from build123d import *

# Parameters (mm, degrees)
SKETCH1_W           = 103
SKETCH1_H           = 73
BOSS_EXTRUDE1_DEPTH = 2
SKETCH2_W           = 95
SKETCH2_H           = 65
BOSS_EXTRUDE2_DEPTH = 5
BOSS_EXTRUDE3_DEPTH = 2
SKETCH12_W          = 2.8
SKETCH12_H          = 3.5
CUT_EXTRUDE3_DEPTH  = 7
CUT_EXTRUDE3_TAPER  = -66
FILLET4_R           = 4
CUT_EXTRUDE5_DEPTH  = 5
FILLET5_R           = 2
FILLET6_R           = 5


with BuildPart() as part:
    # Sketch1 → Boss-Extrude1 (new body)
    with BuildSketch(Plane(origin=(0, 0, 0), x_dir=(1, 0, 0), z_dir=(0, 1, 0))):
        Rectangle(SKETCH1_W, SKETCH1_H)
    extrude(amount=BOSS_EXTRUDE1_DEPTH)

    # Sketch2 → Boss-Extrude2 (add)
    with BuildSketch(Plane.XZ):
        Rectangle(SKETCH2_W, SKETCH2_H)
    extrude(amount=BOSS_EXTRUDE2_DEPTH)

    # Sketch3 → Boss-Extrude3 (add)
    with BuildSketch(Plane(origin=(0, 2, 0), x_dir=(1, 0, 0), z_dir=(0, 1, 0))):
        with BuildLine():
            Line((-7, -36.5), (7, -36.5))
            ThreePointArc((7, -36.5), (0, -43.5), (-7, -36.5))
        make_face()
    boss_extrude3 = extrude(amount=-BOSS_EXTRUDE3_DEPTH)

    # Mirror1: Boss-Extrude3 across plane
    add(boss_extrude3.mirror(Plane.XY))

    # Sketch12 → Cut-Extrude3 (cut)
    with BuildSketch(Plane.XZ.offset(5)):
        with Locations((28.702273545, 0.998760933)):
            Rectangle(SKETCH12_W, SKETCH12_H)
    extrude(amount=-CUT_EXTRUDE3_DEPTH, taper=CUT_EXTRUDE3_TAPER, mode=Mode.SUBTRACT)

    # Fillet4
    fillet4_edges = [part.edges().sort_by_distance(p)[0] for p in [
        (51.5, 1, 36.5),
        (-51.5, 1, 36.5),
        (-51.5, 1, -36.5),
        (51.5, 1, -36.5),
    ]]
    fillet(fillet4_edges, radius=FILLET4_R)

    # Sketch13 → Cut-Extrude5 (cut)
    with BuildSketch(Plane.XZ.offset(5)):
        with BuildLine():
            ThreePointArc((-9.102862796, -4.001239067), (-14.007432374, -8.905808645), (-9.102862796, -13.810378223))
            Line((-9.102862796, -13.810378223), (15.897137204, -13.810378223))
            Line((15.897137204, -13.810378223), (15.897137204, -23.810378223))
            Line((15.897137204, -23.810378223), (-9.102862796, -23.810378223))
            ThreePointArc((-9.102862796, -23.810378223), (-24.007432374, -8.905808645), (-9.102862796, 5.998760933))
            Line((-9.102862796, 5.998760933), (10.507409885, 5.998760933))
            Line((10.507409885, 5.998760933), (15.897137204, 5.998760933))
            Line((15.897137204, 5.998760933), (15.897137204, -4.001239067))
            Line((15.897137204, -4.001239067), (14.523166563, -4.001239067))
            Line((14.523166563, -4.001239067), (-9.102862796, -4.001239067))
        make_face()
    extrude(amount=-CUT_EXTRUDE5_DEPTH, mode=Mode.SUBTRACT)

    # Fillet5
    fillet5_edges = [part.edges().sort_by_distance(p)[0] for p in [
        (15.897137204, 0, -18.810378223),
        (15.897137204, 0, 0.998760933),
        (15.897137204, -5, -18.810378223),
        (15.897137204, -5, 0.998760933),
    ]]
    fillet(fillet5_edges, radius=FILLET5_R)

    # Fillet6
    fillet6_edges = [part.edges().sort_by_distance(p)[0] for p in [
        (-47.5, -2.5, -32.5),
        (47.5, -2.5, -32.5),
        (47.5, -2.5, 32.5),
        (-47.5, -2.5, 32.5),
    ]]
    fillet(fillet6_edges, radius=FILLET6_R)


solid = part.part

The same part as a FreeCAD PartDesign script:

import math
import FreeCAD as App
import Part
import Sketcher
from FreeCAD import Vector
Q = App.Units.Quantity


def edges_at(feature, points):
    """Names of the edges that pass closest to the given points."""
    edges = feature.Shape.Edges
    near = lambda p: min(range(len(edges)), key=lambda i: edges[i].distToShape(Part.Vertex(*p))[0])
    return sorted({f"Edge{near(p) + 1}" for p in points})

doc = App.newDocument("Part")
body = doc.addObject("PartDesign::Body", "Body")

sketch1 = body.newObject("Sketcher::SketchObject", "Sketch")
sketch1.AttachmentSupport = (doc.getObject("XZ_Plane"), [""])
sketch1.MapMode = "FlatFace"
sketch1.addGeometry(Part.LineSegment(Vector(-52, -36, 0), Vector(-52, 36, 0)), False)
sketch1.addGeometry(Part.LineSegment(Vector(-52, 36, 0), Vector(52, 36, 0)), False)
sketch1.addGeometry(Part.LineSegment(Vector(52, 36, 0), Vector(52, -36, 0)), False)
sketch1.addGeometry(Part.LineSegment(Vector(52, -36, 0), Vector(-52, -36, 0)), False)
sketch1.addConstraint(Sketcher.Constraint("Coincident", 0, 2, 1, 1))
sketch1.addConstraint(Sketcher.Constraint("Coincident", 1, 2, 2, 1))
sketch1.addConstraint(Sketcher.Constraint("Coincident", 2, 2, 3, 1))
sketch1.addConstraint(Sketcher.Constraint("Coincident", 3, 2, 0, 1))
sketch1.addConstraint(Sketcher.Constraint("Vertical", 0))
sketch1.addConstraint(Sketcher.Constraint("Horizontal", 1))
sketch1.addConstraint(Sketcher.Constraint("Vertical", 2))
sketch1.addConstraint(Sketcher.Constraint("Horizontal", 3))
sketch1.addConstraint(Sketcher.Constraint("Symmetric", 0, 2, 2, 2, -1, 1))
sketch1.addConstraint(Sketcher.Constraint("DistanceX", 1, 1, 1, 2, Q("103 mm")))
sketch1.addConstraint(Sketcher.Constraint("DistanceY", 0, 1, 0, 2, Q("73 mm")))
pad1 = body.newObject("PartDesign::Pad", "Pad")
pad1.Profile = sketch1
pad1.Length = 2
pad1.Reversed = True

sketch2 = body.newObject("Sketcher::SketchObject", "Sketch001")
sketch2.AttachmentSupport = (doc.getObject("XZ_Plane"), [""])
sketch2.MapMode = "FlatFace"
sketch2.addGeometry(Part.LineSegment(Vector(-48, 32, 0), Vector(-48, -32, 0)), False)
sketch2.addGeometry(Part.LineSegment(Vector(-48, -32, 0), Vector(48, -32, 0)), False)
sketch2.addGeometry(Part.LineSegment(Vector(48, -32, 0), Vector(48, 32, 0)), False)
sketch2.addGeometry(Part.LineSegment(Vector(48, 32, 0), Vector(-48, 32, 0)), False)
sketch2.addConstraint(Sketcher.Constraint("Coincident", 0, 2, 1, 1))
sketch2.addConstraint(Sketcher.Constraint("Coincident", 1, 2, 2, 1))
sketch2.addConstraint(Sketcher.Constraint("Coincident", 2, 2, 3, 1))
sketch2.addConstraint(Sketcher.Constraint("Coincident", 3, 2, 0, 1))
sketch2.addConstraint(Sketcher.Constraint("Vertical", 0))
sketch2.addConstraint(Sketcher.Constraint("Horizontal", 1))
sketch2.addConstraint(Sketcher.Constraint("Vertical", 2))
sketch2.addConstraint(Sketcher.Constraint("Horizontal", 3))
sketch2.addConstraint(Sketcher.Constraint("Symmetric", 0, 2, 2, 2, -1, 1))
sketch2.addConstraint(Sketcher.Constraint("DistanceX", 1, 1, 1, 2, Q("95 mm")))
sketch2.addConstraint(Sketcher.Constraint("DistanceY", 0, 2, 0, 1, Q("65 mm")))
pad2 = body.newObject("PartDesign::Pad", "Pad001")
pad2.Profile = sketch2
pad2.Length = 5

sketch3 = body.newObject("Sketcher::SketchObject", "Sketch002")
sketch3.AttachmentSupport = (doc.getObject("XZ_Plane"), [""])
sketch3.MapMode = "FlatFace"
sketch3.AttachmentOffset = App.Placement(Vector(0, 0, -2), App.Rotation())
sketch3.addGeometry(Part.LineSegment(Vector(7, 36, 0), Vector(-7, 36, 0)), False)
sketch3.addGeometry(Part.ArcOfCircle(Part.Circle(Vector(0, 36, 0), Vector(0, 0, 1), 7), math.radians(0), math.radians(180)), False)
sketch3.addConstraint(Sketcher.Constraint("Coincident", 0, 1, 1, 1))
sketch3.addConstraint(Sketcher.Constraint("Coincident", 1, 2, 0, 2))
sketch3.addConstraint(Sketcher.Constraint("Horizontal", 0))
sketch3.addConstraint(Sketcher.Constraint("PointOnObject", 1, 3, -2))
sketch3.addConstraint(Sketcher.Constraint("Horizontal", 1, 3, 0, 1))
sketch3.addConstraint(Sketcher.Constraint("Radius", 1, Q("7 mm")))
sketch3.addConstraint(Sketcher.Constraint("DistanceY", -1, 1, 1, 3, Q("36.5 mm")))
pad3 = body.newObject("PartDesign::Pad", "Pad002")
pad3.Profile = sketch3
pad3.Length = 2
doc.recompute()

mirrored = body.newObject("PartDesign::Mirrored", "Mirrored")
mirrored.Originals = [pad3]
mirrored.MirrorPlane = (doc.getObject("XY_Plane"), [""])
body.Tip = mirrored

sketch4 = body.newObject("Sketcher::SketchObject", "Sketch003")
sketch4.AttachmentSupport = (doc.getObject("XZ_Plane"), [""])
sketch4.MapMode = "FlatFace"
sketch4.AttachmentOffset = App.Placement(Vector(0, 0, 5), App.Rotation())
sketch4.addGeometry(Part.LineSegment(Vector(27.3, 2.7, 0), Vector(27.3, -0.8, 0)), False)
sketch4.addGeometry(Part.LineSegment(Vector(27.3, -0.8, 0), Vector(30.1, -0.8, 0)), False)
sketch4.addGeometry(Part.LineSegment(Vector(30.1, -0.8, 0), Vector(30.1, 2.7, 0)), False)
sketch4.addGeometry(Part.LineSegment(Vector(30.1, 2.7, 0), Vector(27.3, 2.7, 0)), False)
sketch4.addConstraint(Sketcher.Constraint("Coincident", 0, 2, 1, 1))
sketch4.addConstraint(Sketcher.Constraint("Coincident", 1, 2, 2, 1))
sketch4.addConstraint(Sketcher.Constraint("Coincident", 2, 2, 3, 1))
sketch4.addConstraint(Sketcher.Constraint("Coincident", 3, 2, 0, 1))
sketch4.addConstraint(Sketcher.Constraint("Vertical", 0))
sketch4.addConstraint(Sketcher.Constraint("Horizontal", 1))
sketch4.addConstraint(Sketcher.Constraint("Vertical", 2))
sketch4.addConstraint(Sketcher.Constraint("Horizontal", 3))
sketch4.addConstraint(Sketcher.Constraint("DistanceX", 1, 1, 1, 2, Q("2.8 mm")))
sketch4.addConstraint(Sketcher.Constraint("DistanceY", 0, 2, 0, 1, Q("3.5 mm")))
sketch4.addConstraint(Sketcher.Constraint("DistanceY", 0, 2, -1, 1, Q("0.751239 mm")))
sketch4.addConstraint(Sketcher.Constraint("DistanceX", -1, 1, 0, 2, Q("27.302274 mm")))
pocket1 = body.newObject("PartDesign::Pocket", "Pocket")
pocket1.Profile = sketch4
pocket1.Length = 7
pocket1.TaperAngle = 66
doc.recompute()

fillet = body.newObject("PartDesign::Fillet", "Fillet")
fillet.Base = (pocket1, edges_at(pocket1, [
    (51.5, 1, 36.5),
    (-51.5, 1, 36.5),
    (-51.5, 1, -36.5),
    (51.5, 1, -36.5),
]))
fillet.Radius = 4

sketch5 = body.newObject("Sketcher::SketchObject", "Sketch004")
sketch5.AttachmentSupport = (doc.getObject("XZ_Plane"), [""])
sketch5.MapMode = "FlatFace"
sketch5.AttachmentOffset = App.Placement(Vector(0, 0, 5), App.Rotation())
sketch5.addGeometry(Part.ArcOfCircle(Part.Circle(Vector(-9.1, -8.9, 0), Vector(0, 0, 1), 4.9), math.radians(90), math.radians(270)), False)
sketch5.addGeometry(Part.LineSegment(Vector(-9.1, -4, 0), Vector(15.9, -4, 0)), False)
sketch5.addGeometry(Part.LineSegment(Vector(15.9, -4, 0), Vector(15.9, 6, 0)), False)
sketch5.addGeometry(Part.LineSegment(Vector(15.9, 6, 0), Vector(-9.1, 6, 0)), False)
sketch5.addGeometry(Part.ArcOfCircle(Part.Circle(Vector(-9.1, -8.9, 0), Vector(0, 0, 1), 14.9), math.radians(90), math.radians(270)), False)
sketch5.addGeometry(Part.LineSegment(Vector(-9.1, -23.8, 0), Vector(15.9, -23.8, 0)), False)
sketch5.addGeometry(Part.LineSegment(Vector(15.9, -23.8, 0), Vector(15.9, -13.8, 0)), False)
sketch5.addGeometry(Part.LineSegment(Vector(15.9, -13.8, 0), Vector(-9.1, -13.8, 0)), False)
sketch5.addConstraint(Sketcher.Constraint("Tangent", 0, 1, 1, 1))
sketch5.addConstraint(Sketcher.Constraint("Coincident", 1, 2, 2, 1))
sketch5.addConstraint(Sketcher.Constraint("Coincident", 2, 2, 3, 1))
sketch5.addConstraint(Sketcher.Constraint("Tangent", 3, 2, 4, 1))
sketch5.addConstraint(Sketcher.Constraint("Tangent", 4, 2, 5, 1))
sketch5.addConstraint(Sketcher.Constraint("Coincident", 5, 2, 6, 1))
sketch5.addConstraint(Sketcher.Constraint("Coincident", 6, 2, 7, 1))
sketch5.addConstraint(Sketcher.Constraint("Tangent", 7, 2, 0, 2))
sketch5.addConstraint(Sketcher.Constraint("Horizontal", 1))
sketch5.addConstraint(Sketcher.Constraint("Vertical", 2))
sketch5.addConstraint(Sketcher.Constraint("Horizontal", 3))
sketch5.addConstraint(Sketcher.Constraint("Horizontal", 5))
sketch5.addConstraint(Sketcher.Constraint("Vertical", 6))
sketch5.addConstraint(Sketcher.Constraint("Horizontal", 7))
sketch5.addConstraint(Sketcher.Constraint("Coincident", 4, 3, 0, 3))
sketch5.addConstraint(Sketcher.Constraint("Vertical", 2, 2, 5, 2))
sketch5.addConstraint(Sketcher.Constraint("DistanceX", 1, 1, 1, 2, Q("25 mm")))
sketch5.addConstraint(Sketcher.Constraint("DistanceY", 2, 1, 2, 2, Q("10 mm")))
sketch5.addConstraint(Sketcher.Constraint("Radius", 0, Q("4.90457 mm")))
sketch5.addConstraint(Sketcher.Constraint("DistanceY", 0, 3, -1, 1, Q("8.905809 mm")))
sketch5.addConstraint(Sketcher.Constraint("DistanceX", 0, 3, -1, 1, Q("9.102863 mm")))
pocket2 = body.newObject("PartDesign::Pocket", "Pocket001")
pocket2.Profile = sketch5
pocket2.Length = 5
doc.recompute()

fillet2 = body.newObject("PartDesign::Fillet", "Fillet001")
fillet2.Base = (pocket2, edges_at(pocket2, [
    (15.897, 0, -18.81),
    (15.897, 0, 0.999),
    (15.897, -5, -18.81),
    (15.897, -5, 0.999),
]))
fillet2.Radius = 2
doc.recompute()

fillet3 = body.newObject("PartDesign::Fillet", "Fillet002")
fillet3.Base = (fillet2, edges_at(fillet2, [
    (-47.5, -2.5, -32.5),
    (47.5, -2.5, -32.5),
    (47.5, -2.5, 32.5),
    (-47.5, -2.5, 32.5),
]))
fillet3.Radius = 5

doc.recompute()
